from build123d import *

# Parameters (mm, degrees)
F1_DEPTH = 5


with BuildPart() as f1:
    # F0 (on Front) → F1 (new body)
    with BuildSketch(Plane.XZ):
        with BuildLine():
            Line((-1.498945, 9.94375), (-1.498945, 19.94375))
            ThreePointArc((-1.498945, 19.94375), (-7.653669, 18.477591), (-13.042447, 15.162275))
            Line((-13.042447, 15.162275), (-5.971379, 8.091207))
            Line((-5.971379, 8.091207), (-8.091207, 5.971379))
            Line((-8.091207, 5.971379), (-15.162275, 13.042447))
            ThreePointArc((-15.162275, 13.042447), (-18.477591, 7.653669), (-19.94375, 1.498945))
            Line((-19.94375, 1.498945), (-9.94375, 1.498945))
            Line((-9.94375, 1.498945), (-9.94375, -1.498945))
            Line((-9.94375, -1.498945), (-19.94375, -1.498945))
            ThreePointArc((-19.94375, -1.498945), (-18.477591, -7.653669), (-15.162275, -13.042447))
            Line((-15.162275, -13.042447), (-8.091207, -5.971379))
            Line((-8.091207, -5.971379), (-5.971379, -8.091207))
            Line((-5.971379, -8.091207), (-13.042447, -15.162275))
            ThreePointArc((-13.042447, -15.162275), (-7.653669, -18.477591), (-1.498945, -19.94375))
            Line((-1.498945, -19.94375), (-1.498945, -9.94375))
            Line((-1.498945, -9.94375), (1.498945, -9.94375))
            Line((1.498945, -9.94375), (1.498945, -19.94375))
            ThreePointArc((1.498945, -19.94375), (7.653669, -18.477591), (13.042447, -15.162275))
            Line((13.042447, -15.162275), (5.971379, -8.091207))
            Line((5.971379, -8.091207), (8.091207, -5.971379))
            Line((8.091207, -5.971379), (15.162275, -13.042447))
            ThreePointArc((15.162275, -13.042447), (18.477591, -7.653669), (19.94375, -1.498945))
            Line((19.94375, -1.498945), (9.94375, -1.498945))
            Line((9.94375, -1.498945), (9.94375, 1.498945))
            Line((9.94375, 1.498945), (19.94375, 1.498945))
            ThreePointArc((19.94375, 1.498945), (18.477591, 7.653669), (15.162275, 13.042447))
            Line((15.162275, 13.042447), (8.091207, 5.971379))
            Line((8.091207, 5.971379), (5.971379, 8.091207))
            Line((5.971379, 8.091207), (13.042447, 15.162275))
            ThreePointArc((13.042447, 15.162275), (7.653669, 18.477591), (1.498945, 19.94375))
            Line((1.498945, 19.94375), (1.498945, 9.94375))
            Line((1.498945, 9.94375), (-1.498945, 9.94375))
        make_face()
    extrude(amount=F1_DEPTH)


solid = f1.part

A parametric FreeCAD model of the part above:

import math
import FreeCAD as App
import Part
import Sketcher
from FreeCAD import Vector

doc = App.newDocument("Part")
body = doc.addObject("PartDesign::Body", "Body")

# Sketch on XZ plane
sketch1 = body.newObject("Sketcher::SketchObject", "Sketch")
sketch1.AttachmentSupport = (doc.getObject("XZ_Plane"), [""])
sketch1.MapMode = "FlatFace"
sketch1.addGeometry(Part.LineSegment(Vector(-1.498945, 9.94375, 0), Vector(-1.498945, 19.94375, 0)), False)
sketch1.addGeometry(Part.ArcOfCircle(Part.Circle(Vector(-0.000003, 0.000007, 0), Vector(0, 0, 1), 19.999993), math.radians(94.298184), math.radians(130.701815)), False)
sketch1.addGeometry(Part.LineSegment(Vector(-13.042447, 15.162275, 0), Vector(-5.971379, 8.091207, 0)), False)
sketch1.addGeometry(Part.LineSegment(Vector(-5.971379, 8.091207, 0), Vector(-8.091207, 5.971379, 0)), False)
sketch1.addGeometry(Part.LineSegment(Vector(-8.091207, 5.971379, 0), Vector(-15.162275, 13.042447, 0)), False)
sketch1.addGeometry(Part.ArcOfCircle(Part.Circle(Vector(-0.000007, 0.000003, 0), Vector(0, 0, 1), 19.999993), math.radians(139.298185), math.radians(175.701816)), False)
sketch1.addGeometry(Part.LineSegment(Vector(-19.94375, 1.498945, 0), Vector(-9.94375, 1.498945, 0)), False)
sketch1.addGeometry(Part.LineSegment(Vector(-9.94375, 1.498945, 0), Vector(-9.94375, -1.498945, 0)), False)
sketch1.addGeometry(Part.LineSegment(Vector(-9.94375, -1.498945, 0), Vector(-19.94375, -1.498945, 0)), False)
sketch1.addGeometry(Part.ArcOfCircle(Part.Circle(Vector(-0.000007, -0.000003, 0), Vector(0, 0, 1), 19.999993), math.radians(-175.701816), math.radians(-139.298185)), False)
sketch1.addGeometry(Part.LineSegment(Vector(-15.162275, -13.042447, 0), Vector(-8.091207, -5.971379, 0)), False)
sketch1.addGeometry(Part.LineSegment(Vector(-8.091207, -5.971379, 0), Vector(-5.971379, -8.091207, 0)), False)
sketch1.addGeometry(Part.LineSegment(Vector(-5.971379, -8.091207, 0), Vector(-13.042447, -15.162275, 0)), False)
sketch1.addGeometry(Part.ArcOfCircle(Part.Circle(Vector(-0.000003, -0.000007, 0), Vector(0, 0, 1), 19.999993), math.radians(-130.701815), math.radians(-94.298184)), False)
sketch1.addGeometry(Part.LineSegment(Vector(-1.498945, -19.94375, 0), Vector(-1.498945, -9.94375, 0)), False)
sketch1.addGeometry(Part.LineSegment(Vector(-1.498945, -9.94375, 0), Vector(1.498945, -9.94375, 0)), False)
sketch1.addGeometry(Part.LineSegment(Vector(1.498945, -9.94375, 0), Vector(1.498945, -19.94375, 0)), False)
sketch1.addGeometry(Part.ArcOfCircle(Part.Circle(Vector(0.000003, -0.000007, 0), Vector(0, 0, 1), 19.999993), math.radians(-85.701816), math.radians(-49.298185)), False)
sketch1.addGeometry(Part.LineSegment(Vector(13.042447, -15.162275, 0), Vector(5.971379, -8.091207, 0)), False)
sketch1.addGeometry(Part.LineSegment(Vector(5.971379, -8.091207, 0), Vector(8.091207, -5.971379, 0)), False)
sketch1.addGeometry(Part.LineSegment(Vector(8.091207, -5.971379, 0), Vector(15.162275, -13.042447, 0)), False)
sketch1.addGeometry(Part.ArcOfCircle(Part.Circle(Vector(0.000007, -0.000003, 0), Vector(0, 0, 1), 19.999993), math.radians(-40.701815), math.radians(-4.298184)), False)
sketch1.addGeometry(Part.LineSegment(Vector(19.94375, -1.498945, 0), Vector(9.94375, -1.498945, 0)), False)
sketch1.addGeometry(Part.LineSegment(Vector(9.94375, -1.498945, 0), Vector(9.94375, 1.498945, 0)), False)
sketch1.addGeometry(Part.LineSegment(Vector(9.94375, 1.498945, 0), Vector(19.94375, 1.498945, 0)), False)
sketch1.addGeometry(Part.ArcOfCircle(Part.Circle(Vector(0.000007, 0.000003, 0), Vector(0, 0, 1), 19.999993), math.radians(4.298184), math.radians(40.701815)), False)
sketch1.addGeometry(Part.LineSegment(Vector(15.162275, 13.042447, 0), Vector(8.091207, 5.971379, 0)), False)
sketch1.addGeometry(Part.LineSegment(Vector(8.091207, 5.971379, 0), Vector(5.971379, 8.091207, 0)), False)
sketch1.addGeometry(Part.LineSegment(Vector(5.971379, 8.091207, 0), Vector(13.042447, 15.162275, 0)), False)
sketch1.addGeometry(Part.ArcOfCircle(Part.Circle(Vector(0.000003, 0.000007, 0), Vector(0, 0, 1), 19.999993), math.radians(49.298185), math.radians(85.701816)), False)
sketch1.addGeometry(Part.LineSegment(Vector(1.498945, 19.94375, 0), Vector(1.498945, 9.94375, 0)), False)
sketch1.addGeometry(Part.LineSegment(Vector(1.498945, 9.94375, 0), Vector(-1.498945, 9.94375, 0)), False)
sketch1.addConstraint(Sketcher.Constraint("Coincident", 0, 2, 1, 1))
sketch1.addConstraint(Sketcher.Constraint("Coincident", 1, 2, 2, 1))
sketch1.addConstraint(Sketcher.Constraint("Coincident", 2, 2, 3, 1))
sketch1.addConstraint(Sketcher.Constraint("Coincident", 3, 2, 4, 1))
sketch1.addConstraint(Sketcher.Constraint("Coincident", 4, 2, 5, 1))
sketch1.addConstraint(Sketcher.Constraint("Coincident", 5, 2, 6, 1))
sketch1.addConstraint(Sketcher.Constraint("Coincident", 6, 2, 7, 1))
sketch1.addConstraint(Sketcher.Constraint("Coincident", 7, 2, 8, 1))
sketch1.addConstraint(Sketcher.Constraint("Coincident", 8, 2, 9, 1))
sketch1.addConstraint(Sketcher.Constraint("Coincident", 9, 2, 10, 1))
sketch1.addConstraint(Sketcher.Constraint("Coincident", 10, 2, 11, 1))
sketch1.addConstraint(Sketcher.Constraint("Coincident", 11, 2, 12, 1))
sketch1.addConstraint(Sketcher.Constraint("Coincident", 12, 2, 13, 1))
sketch1.addConstraint(Sketcher.Constraint("Coincident", 13, 2, 14, 1))
sketch1.addConstraint(Sketcher.Constraint("Coincident", 14, 2, 15, 1))
sketch1.addConstraint(Sketcher.Constraint("Coincident", 15, 2, 16, 1))
sketch1.addConstraint(Sketcher.Constraint("Coincident", 16, 2, 17, 1))
sketch1.addConstraint(Sketcher.Constraint("Coincident", 17, 2, 18, 1))
sketch1.addConstraint(Sketcher.Constraint("Coincident", 18, 2, 19, 1))
sketch1.addConstraint(Sketcher.Constraint("Coincident", 19, 2, 20, 1))
sketch1.addConstraint(Sketcher.Constraint("Coincident", 20, 2, 21, 1))
sketch1.addConstraint(Sketcher.Constraint("Coincident", 21, 2, 22, 1))
sketch1.addConstraint(Sketcher.Constraint("Coincident", 22, 2, 23, 1))
sketch1.addConstraint(Sketcher.Constraint("Coincident", 23, 2, 24, 1))
sketch1.addConstraint(Sketcher.Constraint("Coincident", 24, 2, 25, 1))
sketch1.addConstraint(Sketcher.Constraint("Coincident", 25, 2, 26, 1))
sketch1.addConstraint(Sketcher.Constraint("Coincident", 26, 2, 27, 1))
sketch1.addConstraint(Sketcher.Constraint("Coincident", 27, 2, 28, 1))
sketch1.addConstraint(Sketcher.Constraint("Coincident", 28, 2, 29, 1))
sketch1.addConstraint(Sketcher.Constraint("Coincident", 29, 2, 30, 1))
sketch1.addConstraint(Sketcher.Constraint("Coincident", 30, 2, 31, 1))
sketch1.addConstraint(Sketcher.Constraint("Coincident", 31, 2, 0, 1))
sketch1.addConstraint(Sketcher.Constraint("Vertical", 0))
sketch1.addConstraint(Sketcher.Constraint("Horizontal", 6))
sketch1.addConstraint(Sketcher.Constraint("Vertical", 7))
sketch1.addConstraint(Sketcher.Constraint("Horizontal", 8))
sketch1.addConstraint(Sketcher.Constraint("Vertical", 14))
sketch1.addConstraint(Sketcher.Constraint("Horizontal", 15))
sketch1.addConstraint(Sketcher.Constraint("Vertical", 16))
sketch1.addConstraint(Sketcher.Constraint("Horizontal", 22))
sketch1.addConstraint(Sketcher.Constraint("Vertical", 23))
sketch1.addConstraint(Sketcher.Constraint("Horizontal", 24))
sketch1.addConstraint(Sketcher.Constraint("Vertical", 30))
sketch1.addConstraint(Sketcher.Constraint("Horizontal", 31))
sketch1.addConstraint(Sketcher.Constraint("Coincident", 1, 3, -1, 1))
sketch1.addConstraint(Sketcher.Constraint("Coincident", 5, 3, -1, 1))
sketch1.addConstraint(Sketcher.Constraint("Coincident", 9, 3, -1, 1))
sketch1.addConstraint(Sketcher.Constraint("Coincident", 13, 3, -1, 1))
sketch1.addConstraint(Sketcher.Constraint("Coincident", 17, 3, -1, 1))
sketch1.addConstraint(Sketcher.Constraint("Coincident", 21, 3, -1, 1))
sketch1.addConstraint(Sketcher.Constraint("Coincident", 25, 3, -1, 1))
sketch1.addConstraint(Sketcher.Constraint("Coincident", 29, 3, -1, 1))
sketch1.addConstraint(Sketcher.Constraint("Equal", 1, 5))
sketch1.addConstraint(Sketcher.Constraint("Equal", 5, 9))
sketch1.addConstraint(Sketcher.Constraint("Equal", 9, 13))
sketch1.addConstraint(Sketcher.Constraint("Equal", 13, 17))
sketch1.addConstraint(Sketcher.Constraint("Equal", 17, 21))
sketch1.addConstraint(Sketcher.Constraint("Equal", 21, 25))
sketch1.addConstraint(Sketcher.Constraint("Equal", 25, 29))
sketch1.addConstraint(Sketcher.Constraint("Symmetric", 2, 2, 18, 2, -1, 1))
sketch1.addConstraint(Sketcher.Constraint("Symmetric", 3, 2, 19, 2, -1, 1))
sketch1.addConstraint(Sketcher.Constraint("Symmetric", 6, 2, 22, 2, -1, 1))
sketch1.addConstraint(Sketcher.Constraint("Symmetric", 10, 2, 26, 2, -1, 1))
sketch1.addConstraint(Sketcher.Constraint("Symmetric", 11, 2, 27, 2, -1, 1))
sketch1.addConstraint(Sketcher.Constraint("Symmetric", 14, 2, 30, 2, -1, 1))
sketch1.addConstraint(Sketcher.Constraint("Symmetric", 11, 2, 18, 2, -2))
sketch1.addConstraint(Sketcher.Constraint("Symmetric", 10, 2, 19, 2, -2))
sketch1.addConstraint(Sketcher.Constraint("Perpendicular", 2, 3))
sketch1.addConstraint(Sketcher.Constraint("Perpendicular", 3, 4))
sketch1.addConstraint(Sketcher.Constraint("Perpendicular", 4, 10))
sketch1.addConstraint(Sketcher.Constraint("Perpendicular", 10, 11))
sketch1.addConstraint(Sketcher.Constraint("Perpendicular", 11, 12))
sketch1.addConstraint(Sketcher.Constraint("Perpendicular", 12, 18))
sketch1.addConstraint(Sketcher.Constraint("Perpendicular", 19, 20))
sketch1.addConstraint(Sketcher.Constraint("Perpendicular", 20, 26))
sketch1.addConstraint(Sketcher.Constraint("Perpendicular", 27, 28))
sketch1.addConstraint(Sketcher.Constraint("Horizontal", 13, 2, 16, 2))
sketch1.addConstraint(Sketcher.Constraint("Horizontal", 8, 2, 21, 2))
sketch1.addConstraint(Sketcher.Constraint("Horizontal", 6, 2, 23, 2))
sketch1.addConstraint(Sketcher.Constraint("Horizontal", 0, 2, 29, 2))
sketch1.addConstraint(Sketcher.Constraint("Equal", 24, 0))
sketch1.addConstraint(Sketcher.Constraint("Equal", 31, 7))
sketch1.addConstraint(Sketcher.Constraint("Equal", 2, 4))
sketch1.addConstraint(Sketcher.Constraint("DistanceX", 6, 1, 6, 2, 10.0))
sketch1.addConstraint(Sketcher.Constraint("Distance", 2, 10.0))
sketch1.addConstraint(Sketcher.Constraint("Radius", 1, 19.999993))
sketch1.addConstraint(Sketcher.Constraint("DistanceX", 15, 1, 15, 2, 2.99789))
sketch1.addConstraint(Sketcher.Constraint("DistanceX", 1, 2, 0, 2, 11.543502))
pad1 = body.newObject("PartDesign::Pad", "Pad")
pad1.Profile = sketch1
pad1.Length = 5

doc.recompute()
